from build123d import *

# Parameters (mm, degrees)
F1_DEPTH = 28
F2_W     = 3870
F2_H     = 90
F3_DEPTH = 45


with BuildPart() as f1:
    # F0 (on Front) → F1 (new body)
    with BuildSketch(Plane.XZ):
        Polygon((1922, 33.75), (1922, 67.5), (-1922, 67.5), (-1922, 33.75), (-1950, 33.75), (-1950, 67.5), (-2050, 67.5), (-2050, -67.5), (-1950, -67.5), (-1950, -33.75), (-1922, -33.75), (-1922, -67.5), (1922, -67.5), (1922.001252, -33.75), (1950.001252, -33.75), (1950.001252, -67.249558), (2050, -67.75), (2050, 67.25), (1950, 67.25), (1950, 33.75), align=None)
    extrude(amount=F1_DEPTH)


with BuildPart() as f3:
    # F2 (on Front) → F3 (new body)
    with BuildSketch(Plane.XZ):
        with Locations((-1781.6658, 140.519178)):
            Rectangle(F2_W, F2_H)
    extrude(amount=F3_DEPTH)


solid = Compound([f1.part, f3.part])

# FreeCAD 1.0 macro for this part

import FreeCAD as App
import Part
import Sketcher
from FreeCAD import Vector
Q = App.Units.Quantity


def add_polygon(sketch, points):
    """Adds a closed chain of lines whose ends are joined by coincident constraints."""
    first, n = sketch.GeometryCount, len(points)
    for a, b in zip(points, points[1:] + points[:1]):
        sketch.addGeometry(Part.LineSegment(App.Vector(*a, 0), App.Vector(*b, 0)), False)
    for i in range(n):
        sketch.addConstraint(Sketcher.Constraint("Coincident", first + i, 2, first + (i + 1) % n, 1))

doc = App.newDocument("Part")
params = doc.addObject("Spreadsheet::Sheet", "Params")
for row, (alias, value) in enumerate([
    ("sketch1_width", "3844 mm"),
    ("sketch1_width2", "28 mm"),
    ("sketch1_width3", "100 mm"),
    ("sketch1_height", "135 mm"),
    ("sketch1_length", "100 mm"),
    ("pad1_length", "28 mm"),
    ("sketch2_width", "3870 mm"),
    ("sketch2_height", "90 mm"),
    ("pad2_length", "45 mm"),
], start=1):
    params.set(f"A{row}", alias)
    params.set(f"B{row}", "=" + value)
    params.setAlias(f"B{row}", alias)

body = doc.addObject("PartDesign::Body", "Body")

sketch1 = body.newObject("Sketcher::SketchObject", "Sketch")
sketch1.AttachmentSupport = (doc.getObject("XZ_Plane"), [""])
sketch1.MapMode = "FlatFace"
add_polygon(sketch1, [(1922, 34), (1922, 68), (-1922, 68), (-1922, 34), (-1950, 34), (-1950, 68), (-2050, 68), (-2050, -68), (-1950, -68), (-1950, -34), (-1922, -34), (-1922, -68), (1922, -68), (1922, -34), (1950, -34), (1950, -67), (2050, -68), (2050, 67), (1950, 67), (1950, 34)])
sketch1.addConstraint([
    Sketcher.Constraint("Vertical", 0),
    Sketcher.Constraint("Horizontal", 1),
    Sketcher.Constraint("Vertical", 2),
    Sketcher.Constraint("Horizontal", 3),
    Sketcher.Constraint("Vertical", 4),
    Sketcher.Constraint("Horizontal", 5),
    Sketcher.Constraint("Vertical", 6),
    Sketcher.Constraint("Horizontal", 7),
    Sketcher.Constraint("Vertical", 8),
    Sketcher.Constraint("Horizontal", 9),
    Sketcher.Constraint("Vertical", 10),
    Sketcher.Constraint("Horizontal", 11),
    Sketcher.Constraint("Horizontal", 13),
    Sketcher.Constraint("Vertical", 14),
    Sketcher.Constraint("Vertical", 16),
    Sketcher.Constraint("Horizontal", 17),
    Sketcher.Constraint("Vertical", 18),
    Sketcher.Constraint("Horizontal", 19),
    Sketcher.Constraint("Symmetric", 0, 2, 10, 2, -1, 1),
    Sketcher.Constraint("Symmetric", 8, 2, 18, 2, -1, 1),
    Sketcher.Constraint("Symmetric", 3, 2, 18, 2, -2),
    Sketcher.Constraint("Horizontal", 1, 2, 4, 2),
    Sketcher.Constraint("Horizontal", 7, 2, 10, 2),
    Sketcher.Constraint("Horizontal", 9, 2, 12, 2),
    Sketcher.Constraint("Vertical", 2, 2, 9, 2),
    Sketcher.Constraint("Vertical", 0, 2, 11, 2),
    Sketcher.Constraint("Equal", 9, 13),
    Sketcher.Constraint("Equal", 7, 17),
    Sketcher.Constraint("Equal", 6, 16),
    Sketcher.Constraint("DistanceX", 1, 2, 1, 1, Q("3844 mm")),
    Sketcher.Constraint("DistanceX", 3, 2, 3, 1, Q("28 mm")),
    Sketcher.Constraint("DistanceX", 5, 2, 5, 1, Q("100 mm")),
    Sketcher.Constraint("DistanceY", 6, 2, 6, 1, Q("135 mm")),
    Sketcher.Constraint("Distance", 15, Q("100 mm")),
    Sketcher.Constraint("DistanceY", 18, 2, 18, 1, Q("33.5 mm")),
    Sketcher.Constraint("DistanceY", 15, 2, 13, 2, Q("34 mm")),
    Sketcher.Constraint("DistanceY", 14, 2, 14, 1, Q("33.499558 mm")),
])
sketch1.setExpression("Constraints[49]", "Params.sketch1_width")
sketch1.setExpression("Constraints[50]", "Params.sketch1_width2")
sketch1.setExpression("Constraints[51]", "Params.sketch1_width3")
sketch1.setExpression("Constraints[52]", "Params.sketch1_height")
sketch1.setExpression("Constraints[53]", "Params.sketch1_length")
pad1 = body.newObject("PartDesign::Pad", "Pad")
pad1.Profile = sketch1
pad1.setExpression("Length", "Params.pad1_length")
body2 = doc.addObject("PartDesign::Body", "Body001")

sketch2 = body2.newObject("Sketcher::SketchObject", "Sketch001")
sketch2.AttachmentSupport = (doc.getObject("XZ_Plane001"), [""])
sketch2.MapMode = "FlatFace"
add_polygon(sketch2, [(-3717, 186), (-3717, 96), (153, 96), (153, 186)])
sketch2.addConstraint([
    Sketcher.Constraint("Vertical", 0),
    Sketcher.Constraint("Horizontal", 1),
    Sketcher.Constraint("Vertical", 2),
    Sketcher.Constraint("Horizontal", 3),
    Sketcher.Constraint("DistanceX", 1, 1, 1, 2, Q("3870 mm")),
    Sketcher.Constraint("DistanceY", 0, 2, 0, 1, Q("90 mm")),
    Sketcher.Constraint("DistanceX", 0, 2, -1, 1, Q("3716.6658 mm")),
    Sketcher.Constraint("DistanceY", -1, 1, 2, 2, Q("185.519178 mm")),
])
sketch2.setExpression("Constraints[8]", "Params.sketch2_width")
sketch2.setExpression("Constraints[9]", "Params.sketch2_height")
pad2 = body2.newObject("PartDesign::Pad", "Pad001")
pad2.Profile = sketch2
pad2.setExpression("Length", "Params.pad2_length")

doc.recompute()
